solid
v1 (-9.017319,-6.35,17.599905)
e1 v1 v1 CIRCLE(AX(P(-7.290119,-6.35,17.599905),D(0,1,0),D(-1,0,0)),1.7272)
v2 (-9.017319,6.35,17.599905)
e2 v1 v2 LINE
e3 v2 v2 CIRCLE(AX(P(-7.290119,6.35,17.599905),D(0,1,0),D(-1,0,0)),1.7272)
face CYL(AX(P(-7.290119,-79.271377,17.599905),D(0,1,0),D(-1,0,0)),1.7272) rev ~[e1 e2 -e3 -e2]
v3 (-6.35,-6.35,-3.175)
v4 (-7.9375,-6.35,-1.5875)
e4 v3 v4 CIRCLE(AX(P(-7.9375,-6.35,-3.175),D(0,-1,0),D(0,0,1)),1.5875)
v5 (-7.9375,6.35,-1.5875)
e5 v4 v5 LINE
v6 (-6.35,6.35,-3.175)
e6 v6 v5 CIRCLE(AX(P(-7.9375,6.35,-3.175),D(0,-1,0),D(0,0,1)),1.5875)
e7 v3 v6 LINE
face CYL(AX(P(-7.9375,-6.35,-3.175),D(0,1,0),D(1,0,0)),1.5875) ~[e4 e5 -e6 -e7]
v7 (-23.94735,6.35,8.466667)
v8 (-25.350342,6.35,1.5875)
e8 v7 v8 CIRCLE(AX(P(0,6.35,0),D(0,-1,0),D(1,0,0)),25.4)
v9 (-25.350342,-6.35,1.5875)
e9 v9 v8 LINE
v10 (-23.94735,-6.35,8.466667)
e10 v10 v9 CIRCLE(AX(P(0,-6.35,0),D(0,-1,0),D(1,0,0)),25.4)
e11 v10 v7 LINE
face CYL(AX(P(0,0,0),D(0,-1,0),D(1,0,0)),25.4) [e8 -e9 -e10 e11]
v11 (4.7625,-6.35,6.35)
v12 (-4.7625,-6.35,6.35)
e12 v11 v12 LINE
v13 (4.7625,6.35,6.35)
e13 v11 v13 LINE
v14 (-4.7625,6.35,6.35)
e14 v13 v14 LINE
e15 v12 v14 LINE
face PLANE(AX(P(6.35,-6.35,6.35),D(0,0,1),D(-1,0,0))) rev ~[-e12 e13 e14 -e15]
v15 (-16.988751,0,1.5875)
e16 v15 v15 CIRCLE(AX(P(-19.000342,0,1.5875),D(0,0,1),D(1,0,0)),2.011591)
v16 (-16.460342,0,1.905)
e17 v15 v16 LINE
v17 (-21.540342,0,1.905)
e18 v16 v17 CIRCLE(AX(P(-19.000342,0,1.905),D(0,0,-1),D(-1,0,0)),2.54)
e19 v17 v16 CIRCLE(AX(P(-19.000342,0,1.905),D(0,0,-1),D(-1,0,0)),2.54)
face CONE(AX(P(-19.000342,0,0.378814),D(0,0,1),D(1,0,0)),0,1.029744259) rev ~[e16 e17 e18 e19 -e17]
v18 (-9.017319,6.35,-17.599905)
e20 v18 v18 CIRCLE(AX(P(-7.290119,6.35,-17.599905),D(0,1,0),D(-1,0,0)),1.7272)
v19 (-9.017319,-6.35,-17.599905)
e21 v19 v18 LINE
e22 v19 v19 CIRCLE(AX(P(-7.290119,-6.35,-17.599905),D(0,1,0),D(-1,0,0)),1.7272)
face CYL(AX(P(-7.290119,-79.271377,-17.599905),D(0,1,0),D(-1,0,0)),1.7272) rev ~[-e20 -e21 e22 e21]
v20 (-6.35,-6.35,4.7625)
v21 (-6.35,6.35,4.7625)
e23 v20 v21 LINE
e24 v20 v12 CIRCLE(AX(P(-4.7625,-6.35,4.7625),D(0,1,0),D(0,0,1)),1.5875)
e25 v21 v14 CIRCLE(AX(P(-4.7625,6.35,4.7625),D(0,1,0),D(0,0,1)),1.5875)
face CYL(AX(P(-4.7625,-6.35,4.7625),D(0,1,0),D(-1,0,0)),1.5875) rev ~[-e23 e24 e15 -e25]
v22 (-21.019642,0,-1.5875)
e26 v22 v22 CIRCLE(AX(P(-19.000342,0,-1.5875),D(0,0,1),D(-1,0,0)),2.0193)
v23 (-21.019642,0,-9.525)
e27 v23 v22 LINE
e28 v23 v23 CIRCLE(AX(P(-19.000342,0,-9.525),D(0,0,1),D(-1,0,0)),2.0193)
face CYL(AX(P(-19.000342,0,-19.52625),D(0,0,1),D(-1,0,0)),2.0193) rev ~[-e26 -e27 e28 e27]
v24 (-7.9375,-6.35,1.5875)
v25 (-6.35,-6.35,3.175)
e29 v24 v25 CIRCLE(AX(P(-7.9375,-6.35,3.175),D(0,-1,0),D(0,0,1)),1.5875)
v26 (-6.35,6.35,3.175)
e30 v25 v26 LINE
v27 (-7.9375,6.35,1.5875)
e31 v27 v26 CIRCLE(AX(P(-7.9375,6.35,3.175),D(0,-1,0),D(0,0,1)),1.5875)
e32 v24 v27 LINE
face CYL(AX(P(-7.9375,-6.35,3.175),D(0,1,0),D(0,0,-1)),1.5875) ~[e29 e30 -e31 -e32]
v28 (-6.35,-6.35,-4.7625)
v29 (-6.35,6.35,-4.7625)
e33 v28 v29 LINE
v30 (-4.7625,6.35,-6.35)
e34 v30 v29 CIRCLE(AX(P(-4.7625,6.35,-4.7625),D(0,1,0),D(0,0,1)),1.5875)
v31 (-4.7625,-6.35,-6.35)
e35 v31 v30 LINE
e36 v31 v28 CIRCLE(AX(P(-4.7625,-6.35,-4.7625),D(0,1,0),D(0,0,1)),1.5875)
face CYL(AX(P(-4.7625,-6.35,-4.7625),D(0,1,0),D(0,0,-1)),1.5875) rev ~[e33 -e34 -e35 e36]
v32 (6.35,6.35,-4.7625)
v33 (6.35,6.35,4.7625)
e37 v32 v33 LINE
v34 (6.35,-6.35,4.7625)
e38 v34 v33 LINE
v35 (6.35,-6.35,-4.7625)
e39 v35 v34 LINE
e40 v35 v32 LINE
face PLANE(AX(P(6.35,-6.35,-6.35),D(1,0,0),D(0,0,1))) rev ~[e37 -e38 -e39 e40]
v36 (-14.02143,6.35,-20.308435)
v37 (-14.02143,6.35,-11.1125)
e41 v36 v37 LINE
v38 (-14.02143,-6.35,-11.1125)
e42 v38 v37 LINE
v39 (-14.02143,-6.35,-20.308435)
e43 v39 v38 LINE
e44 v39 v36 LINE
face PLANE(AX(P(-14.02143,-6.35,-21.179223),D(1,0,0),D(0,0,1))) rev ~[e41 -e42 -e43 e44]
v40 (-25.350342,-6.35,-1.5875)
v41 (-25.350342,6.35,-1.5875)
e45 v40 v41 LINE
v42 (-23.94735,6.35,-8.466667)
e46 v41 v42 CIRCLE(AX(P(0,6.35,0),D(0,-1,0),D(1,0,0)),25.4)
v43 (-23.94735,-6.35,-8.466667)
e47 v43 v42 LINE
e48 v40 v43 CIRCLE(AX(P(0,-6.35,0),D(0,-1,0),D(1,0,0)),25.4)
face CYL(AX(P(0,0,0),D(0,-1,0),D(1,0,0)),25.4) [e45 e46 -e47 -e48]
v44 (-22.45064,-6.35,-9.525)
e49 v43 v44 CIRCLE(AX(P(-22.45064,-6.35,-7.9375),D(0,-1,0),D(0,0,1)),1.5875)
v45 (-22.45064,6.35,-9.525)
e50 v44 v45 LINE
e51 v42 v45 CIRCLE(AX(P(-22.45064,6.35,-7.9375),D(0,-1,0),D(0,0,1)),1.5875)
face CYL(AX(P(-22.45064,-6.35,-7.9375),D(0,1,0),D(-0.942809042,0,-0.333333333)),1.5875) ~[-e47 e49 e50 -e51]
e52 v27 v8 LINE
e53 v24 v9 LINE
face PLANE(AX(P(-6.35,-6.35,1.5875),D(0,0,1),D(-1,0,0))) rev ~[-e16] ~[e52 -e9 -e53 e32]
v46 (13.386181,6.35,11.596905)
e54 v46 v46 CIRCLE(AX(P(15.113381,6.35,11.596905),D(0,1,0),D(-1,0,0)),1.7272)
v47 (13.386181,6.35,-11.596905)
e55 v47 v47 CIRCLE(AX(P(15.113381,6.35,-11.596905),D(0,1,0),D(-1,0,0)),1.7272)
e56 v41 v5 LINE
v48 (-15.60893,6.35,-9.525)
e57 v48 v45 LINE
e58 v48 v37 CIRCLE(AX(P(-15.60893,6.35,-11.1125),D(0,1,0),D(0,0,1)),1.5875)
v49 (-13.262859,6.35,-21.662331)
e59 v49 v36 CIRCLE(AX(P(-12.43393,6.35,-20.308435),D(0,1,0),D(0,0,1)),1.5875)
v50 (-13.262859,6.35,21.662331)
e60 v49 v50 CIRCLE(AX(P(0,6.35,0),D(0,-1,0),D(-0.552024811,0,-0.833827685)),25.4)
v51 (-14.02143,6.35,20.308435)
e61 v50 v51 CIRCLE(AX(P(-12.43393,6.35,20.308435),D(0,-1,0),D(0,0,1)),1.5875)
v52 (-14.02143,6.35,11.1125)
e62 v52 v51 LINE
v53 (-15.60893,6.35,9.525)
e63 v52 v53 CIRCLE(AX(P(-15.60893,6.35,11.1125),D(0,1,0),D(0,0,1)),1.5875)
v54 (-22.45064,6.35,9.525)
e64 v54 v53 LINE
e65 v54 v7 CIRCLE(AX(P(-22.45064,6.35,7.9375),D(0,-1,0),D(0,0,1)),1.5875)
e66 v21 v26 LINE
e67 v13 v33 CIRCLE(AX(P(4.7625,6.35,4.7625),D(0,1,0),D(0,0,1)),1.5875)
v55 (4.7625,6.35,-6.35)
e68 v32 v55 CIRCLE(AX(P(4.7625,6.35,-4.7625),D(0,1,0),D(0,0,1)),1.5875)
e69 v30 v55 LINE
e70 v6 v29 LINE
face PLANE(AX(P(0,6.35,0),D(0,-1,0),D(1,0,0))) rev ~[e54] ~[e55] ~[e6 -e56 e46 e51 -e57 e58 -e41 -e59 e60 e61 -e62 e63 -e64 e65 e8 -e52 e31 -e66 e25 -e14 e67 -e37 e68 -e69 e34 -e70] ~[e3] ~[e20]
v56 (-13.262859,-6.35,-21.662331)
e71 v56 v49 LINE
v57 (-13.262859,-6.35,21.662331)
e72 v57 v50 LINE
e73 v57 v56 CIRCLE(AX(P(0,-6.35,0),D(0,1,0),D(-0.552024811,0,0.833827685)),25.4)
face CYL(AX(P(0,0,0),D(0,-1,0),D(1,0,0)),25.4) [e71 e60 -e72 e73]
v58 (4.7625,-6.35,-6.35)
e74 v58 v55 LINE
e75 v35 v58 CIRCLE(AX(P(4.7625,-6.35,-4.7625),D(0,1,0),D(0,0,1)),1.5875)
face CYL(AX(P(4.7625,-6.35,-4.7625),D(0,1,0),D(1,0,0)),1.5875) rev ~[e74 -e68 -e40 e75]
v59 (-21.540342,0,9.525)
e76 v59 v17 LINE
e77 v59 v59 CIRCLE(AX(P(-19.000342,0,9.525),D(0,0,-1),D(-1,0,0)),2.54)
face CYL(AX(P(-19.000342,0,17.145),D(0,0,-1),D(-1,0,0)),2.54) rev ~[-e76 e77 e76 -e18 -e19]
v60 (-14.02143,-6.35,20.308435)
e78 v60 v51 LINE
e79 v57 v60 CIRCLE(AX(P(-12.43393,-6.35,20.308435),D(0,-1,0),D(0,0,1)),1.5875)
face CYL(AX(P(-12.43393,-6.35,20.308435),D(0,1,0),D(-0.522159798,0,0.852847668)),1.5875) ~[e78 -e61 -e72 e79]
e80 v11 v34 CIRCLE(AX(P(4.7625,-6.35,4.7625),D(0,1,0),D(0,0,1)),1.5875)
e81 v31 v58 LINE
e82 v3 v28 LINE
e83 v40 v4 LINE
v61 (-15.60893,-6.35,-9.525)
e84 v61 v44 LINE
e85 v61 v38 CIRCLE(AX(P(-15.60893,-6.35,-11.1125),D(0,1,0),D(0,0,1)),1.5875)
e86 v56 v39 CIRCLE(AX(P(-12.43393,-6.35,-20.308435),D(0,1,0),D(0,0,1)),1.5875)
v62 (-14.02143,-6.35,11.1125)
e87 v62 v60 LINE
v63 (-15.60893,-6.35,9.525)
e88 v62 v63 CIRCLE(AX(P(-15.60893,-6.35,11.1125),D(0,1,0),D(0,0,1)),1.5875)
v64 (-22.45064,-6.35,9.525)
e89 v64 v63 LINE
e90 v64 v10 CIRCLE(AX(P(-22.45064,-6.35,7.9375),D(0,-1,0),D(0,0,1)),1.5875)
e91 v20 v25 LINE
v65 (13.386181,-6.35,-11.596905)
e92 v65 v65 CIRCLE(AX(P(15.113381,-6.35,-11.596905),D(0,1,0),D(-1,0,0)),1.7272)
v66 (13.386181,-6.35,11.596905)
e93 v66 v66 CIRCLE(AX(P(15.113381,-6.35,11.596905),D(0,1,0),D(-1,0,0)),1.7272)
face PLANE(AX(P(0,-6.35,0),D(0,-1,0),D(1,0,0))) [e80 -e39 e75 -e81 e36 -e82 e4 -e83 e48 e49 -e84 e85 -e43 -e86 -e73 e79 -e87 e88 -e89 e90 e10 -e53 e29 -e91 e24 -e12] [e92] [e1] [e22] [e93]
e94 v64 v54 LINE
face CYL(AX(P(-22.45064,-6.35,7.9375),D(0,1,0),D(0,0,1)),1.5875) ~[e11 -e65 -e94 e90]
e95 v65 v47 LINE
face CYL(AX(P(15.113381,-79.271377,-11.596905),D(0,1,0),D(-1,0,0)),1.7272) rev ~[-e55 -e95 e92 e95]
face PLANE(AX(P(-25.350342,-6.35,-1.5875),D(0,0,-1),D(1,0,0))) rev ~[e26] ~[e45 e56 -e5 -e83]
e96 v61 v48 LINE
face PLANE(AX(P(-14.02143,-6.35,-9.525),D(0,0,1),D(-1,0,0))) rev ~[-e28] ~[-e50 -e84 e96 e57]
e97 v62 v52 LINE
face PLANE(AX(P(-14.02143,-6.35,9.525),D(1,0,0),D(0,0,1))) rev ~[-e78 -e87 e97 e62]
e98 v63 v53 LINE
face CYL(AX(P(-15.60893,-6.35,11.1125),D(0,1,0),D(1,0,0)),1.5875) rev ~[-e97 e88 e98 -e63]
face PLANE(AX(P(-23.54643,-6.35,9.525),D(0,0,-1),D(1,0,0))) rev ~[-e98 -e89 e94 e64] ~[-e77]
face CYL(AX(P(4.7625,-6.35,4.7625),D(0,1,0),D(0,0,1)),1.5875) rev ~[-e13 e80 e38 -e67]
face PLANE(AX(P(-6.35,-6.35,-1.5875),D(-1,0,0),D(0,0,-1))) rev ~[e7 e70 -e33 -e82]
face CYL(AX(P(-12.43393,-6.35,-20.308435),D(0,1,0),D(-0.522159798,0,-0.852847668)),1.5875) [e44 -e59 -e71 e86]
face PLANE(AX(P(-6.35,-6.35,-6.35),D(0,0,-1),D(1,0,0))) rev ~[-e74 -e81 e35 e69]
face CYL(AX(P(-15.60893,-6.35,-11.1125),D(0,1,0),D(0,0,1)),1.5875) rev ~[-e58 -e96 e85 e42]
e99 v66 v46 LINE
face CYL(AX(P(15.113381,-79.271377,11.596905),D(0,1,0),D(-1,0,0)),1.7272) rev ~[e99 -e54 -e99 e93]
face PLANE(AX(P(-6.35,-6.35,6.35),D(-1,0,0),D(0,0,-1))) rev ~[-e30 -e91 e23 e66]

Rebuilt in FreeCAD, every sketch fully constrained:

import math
import FreeCAD as App
import Part
import Sketcher

V = App.Vector
Q = App.Units.Quantity


def edges_at(feature, points):
    """Names of the edges that pass closest to the given points."""
    edges = feature.Shape.Edges
    near = lambda p: min(range(len(edges)), key=lambda i: edges[i].distToShape(Part.Vertex(*p))[0])
    return sorted({f"Edge{near(p) + 1}" for p in points})

doc = App.newDocument("Part")
body = doc.addObject("PartDesign::Body", "Body")

sketch1 = body.newObject("Sketcher::SketchObject", "Sketch")
sketch1.AttachmentSupport = (doc.getObject("XZ_Plane"), [""])
sketch1.MapMode = "FlatFace"
sketch1.addGeometry(Part.Circle(V(0, 0, 0), V(0, 0, 1), 25), False)
sketch1.addConstraint([
    Sketcher.Constraint("Coincident", 0, 3, -1, 1),
    Sketcher.Constraint("Diameter", 0, Q("2 in")),
])
pad1 = body.newObject("PartDesign::Pad", "Pad")
pad1.Profile = sketch1
pad1.Length = Q("0.5 in")
pad1.Midplane = True

sketch2 = body.newObject("Sketcher::SketchObject", "Sketch001")
sketch2.AttachmentSupport = (doc.getObject("XZ_Plane"), [""])
sketch2.MapMode = "FlatFace"
sketch2.AttachmentOffset = App.Placement(V(0, 0, 0.25 * 25.4), App.Rotation())
sketch2.addGeometry([
    Part.LineSegment(V(-6.3, 1.6, 0), V(-25.4, 1.6, 0)),
    Part.ArcOfCircle(Part.Circle(V(0, 0, 0), V(0, 0, 1), 25.4), math.radians(176.42), math.radians(180)),
    Part.ArcOfCircle(Part.Circle(V(0, 0, 0), V(0, 0, 1), 25.4), math.radians(-180), math.radians(-176.42)),
    Part.LineSegment(V(-25.4, -1.6, 0), V(-6.3, -1.6, 0)),
    Part.LineSegment(V(-6.3, -1.6, 0), V(-6.3, -6.3, 0)),
    Part.LineSegment(V(-6.3, -6.3, 0), V(6.3, -6.3, 0)),
    Part.LineSegment(V(6.3, -6.3, 0), V(6.3, 6.3, 0)),
    Part.LineSegment(V(6.3, 6.3, 0), V(-6.3, 6.3, 0)),
    Part.LineSegment(V(-6.3, 6.3, 0), V(-6.3, 1.6, 0)),
], False)
sketch2.addConstraint([
    Sketcher.Constraint("Coincident", 0, 2, 1, 1),
    Sketcher.Constraint("Tangent", 1, 2, 2, 1),
    Sketcher.Constraint("Coincident", 2, 2, 3, 1),
    Sketcher.Constraint("Coincident", 3, 2, 4, 1),
    Sketcher.Constraint("Coincident", 4, 2, 5, 1),
    Sketcher.Constraint("Coincident", 5, 2, 6, 1),
    Sketcher.Constraint("Coincident", 6, 2, 7, 1),
    Sketcher.Constraint("Coincident", 7, 2, 8, 1),
    Sketcher.Constraint("Coincident", 8, 2, 0, 1),
    Sketcher.Constraint("Horizontal", 0),
    Sketcher.Constraint("Horizontal", 3),
    Sketcher.Constraint("Vertical", 4),
    Sketcher.Constraint("Horizontal", 5),
    Sketcher.Constraint("Vertical", 6),
    Sketcher.Constraint("Horizontal", 7),
    Sketcher.Constraint("Vertical", 8),
    Sketcher.Constraint("Coincident", 1, 3, -1, 1),
    Sketcher.Constraint("Equal", 1, 2),
    Sketcher.Constraint("Symmetric", 4, 2, 6, 2, -1, 1),
    Sketcher.Constraint("Symmetric", 3, 2, 8, 2, -1),
    Sketcher.Constraint("PointOnObject", 1, 2, -1),
    Sketcher.Constraint("Equal", 7, 6),
    Sketcher.Constraint("Radius", 1, Q("1 in")),
    Sketcher.Constraint("DistanceX", 5, 1, 5, 2, Q("0.5 in")),
    Sketcher.Constraint("DistanceY", 4, 2, 4, 1, Q("0.1875 in")),
])
pocket1 = body.newObject("PartDesign::Pocket", "Pocket")
pocket1.Profile = sketch2
pocket1.Length = Q("1 in")

sketch3 = body.newObject("Sketcher::SketchObject", "Sketch002")
sketch3.AttachmentSupport = (doc.getObject("XZ_Plane"), [""])
sketch3.MapMode = "FlatFace"
sketch3.AttachmentOffset = App.Placement(V(0, 0, 0.25 * 25.4), App.Rotation())
sketch3.addGeometry([
    Part.LineSegment(V(-24, 10, 0), V(-14, 10, 0)),
    Part.LineSegment(V(-14, 10, 0), V(-14, 21, 0)),
    Part.ArcOfCircle(Part.Circle(V(0, 0, 0), V(0, 0, 1), 25), math.radians(124), math.radians(158)),
    Part.ArcOfCircle(Part.Circle(V(0, 0, 0), V(0, 0, 1), 25), math.radians(-158), math.radians(-124)),
    Part.LineSegment(V(-14, -21, 0), V(-14, -10, 0)),
    Part.LineSegment(V(-14, -10, 0), V(-24, -10, 0)),
], False)
sketch3.addConstraint([
    Sketcher.Constraint("Coincident", 0, 2, 1, 1),
    Sketcher.Constraint("Coincident", 1, 2, 2, 1),
    Sketcher.Constraint("Coincident", 2, 2, 0, 1),
    Sketcher.Constraint("Coincident", 3, 2, 4, 1),
    Sketcher.Constraint("Coincident", 4, 2, 5, 1),
    Sketcher.Constraint("Coincident", 5, 2, 3, 1),
    Sketcher.Constraint("Horizontal", 0),
    Sketcher.Constraint("Vertical", 1),
    Sketcher.Constraint("Vertical", 4),
    Sketcher.Constraint("Horizontal", 5),
    Sketcher.Constraint("Coincident", 2, 3, -1, 1),
    Sketcher.Constraint("Coincident", 3, 3, -1, 1),
    Sketcher.Constraint("Equal", 2, 3),
    Sketcher.Constraint("Symmetric", 0, 2, 4, 2, -1),
    Sketcher.Constraint("Radius", 2, Q("1 in")),
    Sketcher.Constraint("DistanceX", 0, 1, 0, 2, Q("0.375 in")),
    Sketcher.Constraint("DistanceY", 4, 2, 0, 2, Q("0.75 in")),
])
pocket2 = body.newObject("PartDesign::Pocket", "Pocket001")
pocket2.Profile = sketch3
pocket2.Length = Q("1 in")
doc.recompute()

fillet = body.newObject("PartDesign::Fillet", "Fillet")
fillet.Base = (pocket2, edges_at(pocket2, [
    (-23.546, 0, 9.525),
    (-14.021, 0, 21.179),
    (-14.021, 0, 9.525),
    (-6.35, 0, 6.35),
    (-6.35, 0, 1.587),
    (-6.35, 0, -1.587),
    (-6.35, 0, -6.35),
    (6.35, 0, 6.35),
    (6.35, 0, -6.35),
    (-23.546, 0, -9.525),
    (-14.021, 0, -9.525),
    (-14.021, 0, -21.179),
]))
fillet.Radius = Q("0.0625 in")

sketch4 = body.newObject("Sketcher::SketchObject", "Sketch003")
sketch4.AttachmentSupport = (doc.getObject("XZ_Plane"), [""])
sketch4.MapMode = "FlatFace"
sketch4.AttachmentOffset = App.Placement(V(0, 0, 0.25 * 25.4), App.Rotation())
sketch4.addGeometry([
    Part.Circle(V(-7.3, 17.6, 0), V(0, 0, 1), 1.7),
    Part.Circle(V(15.1, 11.6, 0), V(0, 0, 1), 1.7),
    Part.Circle(V(15.1, -11.6, 0), V(0, 0, 1), 1.7),
    Part.Circle(V(-7.3, -17.6, 0), V(0, 0, 1), 1.7),
], False)
sketch4.addConstraint([
    Sketcher.Constraint("Equal", 0, 1),
    Sketcher.Constraint("Equal", 1, 2),
    Sketcher.Constraint("Equal", 2, 3),
    Sketcher.Constraint("Symmetric", 1, 3, 2, 3, -1),
    Sketcher.Constraint("Symmetric", 0, 3, 3, 3, -1),
    Sketcher.Constraint("Diameter", 0, Q("0.136 in")),
    Sketcher.Constraint("DistanceX", 0, 3, 1, 3, 22.403501),
    Sketcher.Constraint("DistanceY", 1, 3, 0, 3, 6.003),
    Sketcher.Constraint("DistanceX", 0, 3, -1, 1, 7.290119),
    Sketcher.Constraint("DistanceY", 2, 3, 1, 3, 23.19381),
])
doc.recompute()
hole = body.newObject("PartDesign::Hole", "Hole")
hole.Profile = sketch4
hole.ThreadType = "None"
hole.Diameter = Q("0.136 in")
hole.DepthType = "ThroughAll"

sketch5 = body.newObject("Sketcher::SketchObject", "Sketch004")
sketch5.AttachmentSupport = (doc.getObject("XY_Plane"), [""])
sketch5.MapMode = "FlatFace"
sketch5.AttachmentOffset = App.Placement(V(0, 0, 0.375 * 25.4), App.Rotation())
sketch5.addGeometry(Part.Circle(V(-19, 0, 0), V(0, 0, 1), 2.5), False)
sketch5.addConstraint([
    Sketcher.Constraint("PointOnObject", 0, 3, -1),
    Sketcher.Constraint("Diameter", 0, Q("0.2 in")),
    Sketcher.Constraint("DistanceX", 0, 3, -1, 1, 19.000342),
])
doc.recompute()
hole2 = body.newObject("PartDesign::Hole", "Hole001")
hole2.Profile = sketch5
hole2.ThreadType = "None"
hole2.Diameter = Q("0.2 in")
hole2.DepthType = "Dimension"
hole2.Depth = Q("0.3 in")
hole2.DrillPoint = "Angled"
hole2.DrillPointAngle = 118

sketch6 = body.newObject("Sketcher::SketchObject", "Sketch005")
sketch6.AttachmentSupport = (doc.getObject("XY_Plane"), [""])
sketch6.MapMode = "FlatFace"
sketch6.AttachmentOffset = App.Placement(V(0, 0, -0.375 * 25.4), App.Rotation())
sketch6.addGeometry(Part.Circle(V(-19, 0, 0), V(0, 0, 1), 2), False)
sketch6.addConstraint([
    Sketcher.Constraint("PointOnObject", 0, 3, -1),
    Sketcher.Constraint("Diameter", 0, Q("0.159 in")),
    Sketcher.Constraint("DistanceX", 0, 3, -1, 1, 19.000342),
])
doc.recompute()
hole3 = body.newObject("PartDesign::Hole", "Hole002")
hole3.Profile = sketch6
hole3.ThreadType = "None"
hole3.Diameter = Q("0.159 in")
hole3.DepthType = "Dimension"
hole3.Depth = 10.00125
hole3.DrillPoint = "Angled"
hole3.DrillPointAngle = 118
hole3.Reversed = True

doc.recompute()
